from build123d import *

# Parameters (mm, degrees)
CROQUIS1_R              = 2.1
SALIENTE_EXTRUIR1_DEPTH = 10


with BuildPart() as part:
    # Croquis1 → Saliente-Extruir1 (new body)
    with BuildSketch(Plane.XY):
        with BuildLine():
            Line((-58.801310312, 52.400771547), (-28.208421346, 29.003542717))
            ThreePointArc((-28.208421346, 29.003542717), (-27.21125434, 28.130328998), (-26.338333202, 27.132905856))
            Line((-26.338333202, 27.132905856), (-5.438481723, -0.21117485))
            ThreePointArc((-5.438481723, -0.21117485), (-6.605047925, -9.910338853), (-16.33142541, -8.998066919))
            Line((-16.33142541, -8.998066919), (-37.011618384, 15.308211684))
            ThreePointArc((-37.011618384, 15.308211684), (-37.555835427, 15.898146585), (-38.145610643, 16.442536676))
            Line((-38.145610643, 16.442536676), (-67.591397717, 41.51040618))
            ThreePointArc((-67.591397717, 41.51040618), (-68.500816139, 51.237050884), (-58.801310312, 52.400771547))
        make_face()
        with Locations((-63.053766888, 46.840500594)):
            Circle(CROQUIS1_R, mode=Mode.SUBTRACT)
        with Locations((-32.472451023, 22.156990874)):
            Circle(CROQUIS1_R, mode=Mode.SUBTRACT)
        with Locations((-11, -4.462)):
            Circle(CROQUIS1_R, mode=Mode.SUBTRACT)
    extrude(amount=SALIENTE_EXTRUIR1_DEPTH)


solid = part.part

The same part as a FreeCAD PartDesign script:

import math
import FreeCAD as App
import Part
import Sketcher
Q = App.Units.Quantity

doc = App.newDocument("Part")
body = doc.addObject("PartDesign::Body", "Body")

# Sketch on XY plane
sketch1 = body.newObject("Sketcher::SketchObject", "Sketch")
sketch1.AttachmentSupport = (doc.getObject("XY_Plane"), [""])
sketch1.MapMode = "FlatFace"
sketch1.addGeometry([
    Part.LineSegment(App.Vector(-28.2, 29, 0), App.Vector(-58.8, 52.4, 0)),  # 0
    Part.ArcOfCircle(Part.Circle(App.Vector(-63.1, 46.8, 0), App.Vector(0, 0, 1), 7), math.radians(53), math.radians(230)),  # 1
    Part.LineSegment(App.Vector(-67.6, 41.5, 0), App.Vector(-38.1, 16.4, 0)),  # 2
    Part.ArcOfCircle(Part.Circle(App.Vector(-44.6, 8.8, 0), App.Vector(0, 0, 1), 10), math.radians(40.39), math.radians(49.59)),  # 3
    Part.LineSegment(App.Vector(-37, 15.3, 0), App.Vector(-16.3, -9, 0)),  # 4
    Part.ArcOfCircle(Part.Circle(App.Vector(-11, -4.5, 0), App.Vector(0, 0, 1), 7), math.radians(-140), math.radians(37)),  # 5
    Part.LineSegment(App.Vector(-5.4, -0.2, 0), App.Vector(-26.3, 27.1, 0)),  # 6
    Part.ArcOfCircle(Part.Circle(App.Vector(-34.3, 21.1, 0), App.Vector(0, 0, 1), 10), math.radians(37.39), math.radians(52.59)),  # 7
    Part.Circle(App.Vector(-11, -4.5, 0), App.Vector(0, 0, 1), 2.1),  # 8
    Part.Circle(App.Vector(-32.5, 22.2, 0), App.Vector(0, 0, 1), 2.1),  # 9
    Part.Circle(App.Vector(-63.1, 46.8, 0), App.Vector(0, 0, 1), 2.1),  # 10
], False)
sketch1.addConstraint([
    Sketcher.Constraint("Tangent", 0, 2, 1, 1),
    Sketcher.Constraint("Tangent", 1, 2, 2, 1),
    Sketcher.Constraint("Tangent", 2, 2, 3, 2),
    Sketcher.Constraint("Tangent", 3, 1, 4, 1),
    Sketcher.Constraint("Tangent", 4, 2, 5, 1),
    Sketcher.Constraint("Tangent", 5, 2, 6, 1),
    Sketcher.Constraint("Tangent", 6, 2, 7, 1),
    Sketcher.Constraint("Tangent", 7, 2, 0, 1),
    Sketcher.Constraint("Coincident", 8, 3, 5, 3),
    Sketcher.Constraint("Coincident", 10, 3, 1, 3),
    Sketcher.Constraint("Equal", 1, 5),
    Sketcher.Constraint("Equal", 3, 7),
    Sketcher.Constraint("Equal", 8, 9),
    Sketcher.Constraint("Equal", 9, 10),
    Sketcher.Constraint("Radius", 1, Q("7 mm")),
    Sketcher.Constraint("Radius", 3, Q("10 mm")),
    Sketcher.Constraint("Diameter", 8, Q("4.2 mm")),
    Sketcher.Constraint("DistanceX", 5, 3, -1, 1, Q("11 mm")),
    Sketcher.Constraint("DistanceY", 5, 3, -1, 1, Q("4.462 mm")),
    Sketcher.Constraint("DistanceY", -1, 1, 1, 3, Q("46.840501 mm")),
    Sketcher.Constraint("DistanceY", -1, 1, 7, 3, Q("21.060298 mm")),
    Sketcher.Constraint("Distance", 0, Q("38.51435 mm")),
    Sketcher.Constraint("Distance", 2, Q("38.67108 mm")),
    Sketcher.Constraint("DistanceX", 3, 3, -1, 1, Q("44.62794 mm")),
    Sketcher.Constraint("DistanceX", 7, 3, -1, 1, Q("34.283359 mm")),
    Sketcher.Constraint("DistanceX", 9, 3, -1, 1, Q("32.472451 mm")),
    Sketcher.Constraint("DistanceY", -1, 1, 9, 3, Q("22.156991 mm")),
])
pad1 = body.newObject("PartDesign::Pad", "Pad")
pad1.Profile = sketch1
pad1.Length = 10

doc.recompute()
